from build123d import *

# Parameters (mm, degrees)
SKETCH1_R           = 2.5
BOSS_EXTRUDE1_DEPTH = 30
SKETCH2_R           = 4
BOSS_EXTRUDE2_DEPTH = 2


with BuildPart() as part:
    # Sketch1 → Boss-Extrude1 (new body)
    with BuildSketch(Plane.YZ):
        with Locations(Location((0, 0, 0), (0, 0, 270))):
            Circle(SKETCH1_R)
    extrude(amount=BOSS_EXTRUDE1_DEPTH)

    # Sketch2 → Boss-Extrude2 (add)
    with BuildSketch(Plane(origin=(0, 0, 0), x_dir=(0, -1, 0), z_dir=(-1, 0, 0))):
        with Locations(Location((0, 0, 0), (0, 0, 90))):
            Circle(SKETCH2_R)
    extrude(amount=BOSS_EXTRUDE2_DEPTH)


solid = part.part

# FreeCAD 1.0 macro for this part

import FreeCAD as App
import Part
import Sketcher

V = App.Vector
Q = App.Units.Quantity

doc = App.newDocument("Part")
body = doc.addObject("PartDesign::Body", "Body")

# Sketch on YZ plane
sketch1 = body.newObject("Sketcher::SketchObject", "Sketch")
sketch1.AttachmentSupport = (doc.getObject("YZ_Plane"), [""])
sketch1.MapMode = "FlatFace"
sketch1.addGeometry(Part.Circle(V(0, 0, 0), V(0, 0, 1), 2.5), False)
sketch1.addConstraint([
    Sketcher.Constraint("Coincident", 0, 3, -1, 1),
    Sketcher.Constraint("Diameter", 0, Q("5 mm")),
])
pad1 = body.newObject("PartDesign::Pad", "Pad")
pad1.Profile = sketch1
pad1.Length = 30

# Sketch on YZ plane
sketch2 = body.newObject("Sketcher::SketchObject", "Sketch001")
sketch2.AttachmentSupport = (doc.getObject("YZ_Plane"), [""])
sketch2.MapMode = "FlatFace"
sketch2.addGeometry(Part.Circle(V(0, 0, 0), V(0, 0, 1), 4), False)
sketch2.addConstraint([
    Sketcher.Constraint("Coincident", 0, 3, -1, 1),
    Sketcher.Constraint("Diameter", 0, Q("8 mm")),
])
pad2 = body.newObject("PartDesign::Pad", "Pad001")
pad2.Profile = sketch2
pad2.Length = 2
pad2.Reversed = True

doc.recompute()
